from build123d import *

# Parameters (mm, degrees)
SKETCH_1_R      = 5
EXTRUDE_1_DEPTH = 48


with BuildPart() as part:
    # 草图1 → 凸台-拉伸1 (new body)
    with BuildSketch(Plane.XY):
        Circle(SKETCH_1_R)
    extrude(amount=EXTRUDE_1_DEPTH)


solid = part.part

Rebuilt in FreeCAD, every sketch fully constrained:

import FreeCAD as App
import Part
import Sketcher

V = App.Vector

doc = App.newDocument("Part")
body = doc.addObject("PartDesign::Body", "Body")

# Sketch on XY plane
sketch1 = doc.addObject("Sketcher::SketchObject", "Sketch")
body.addObject(sketch1)
sketch1.AttachmentSupport = (doc.XY_Plane, [""])
sketch1.MapMode = "FlatFace"
sketch1.addGeometry(Part.Circle(V(0, 0, 0), V(0, 0, 1), 5), False)
sketch1.addConstraint([
    Sketcher.Constraint("Coincident", 0, 3, -1, 1),
    Sketcher.Constraint("Diameter", 0, 10.0),
])
pad1 = doc.addObject("PartDesign::Pad", "Pad")
body.addObject(pad1)
pad1.Profile = sketch1
pad1.Length = 48

doc.recompute()
